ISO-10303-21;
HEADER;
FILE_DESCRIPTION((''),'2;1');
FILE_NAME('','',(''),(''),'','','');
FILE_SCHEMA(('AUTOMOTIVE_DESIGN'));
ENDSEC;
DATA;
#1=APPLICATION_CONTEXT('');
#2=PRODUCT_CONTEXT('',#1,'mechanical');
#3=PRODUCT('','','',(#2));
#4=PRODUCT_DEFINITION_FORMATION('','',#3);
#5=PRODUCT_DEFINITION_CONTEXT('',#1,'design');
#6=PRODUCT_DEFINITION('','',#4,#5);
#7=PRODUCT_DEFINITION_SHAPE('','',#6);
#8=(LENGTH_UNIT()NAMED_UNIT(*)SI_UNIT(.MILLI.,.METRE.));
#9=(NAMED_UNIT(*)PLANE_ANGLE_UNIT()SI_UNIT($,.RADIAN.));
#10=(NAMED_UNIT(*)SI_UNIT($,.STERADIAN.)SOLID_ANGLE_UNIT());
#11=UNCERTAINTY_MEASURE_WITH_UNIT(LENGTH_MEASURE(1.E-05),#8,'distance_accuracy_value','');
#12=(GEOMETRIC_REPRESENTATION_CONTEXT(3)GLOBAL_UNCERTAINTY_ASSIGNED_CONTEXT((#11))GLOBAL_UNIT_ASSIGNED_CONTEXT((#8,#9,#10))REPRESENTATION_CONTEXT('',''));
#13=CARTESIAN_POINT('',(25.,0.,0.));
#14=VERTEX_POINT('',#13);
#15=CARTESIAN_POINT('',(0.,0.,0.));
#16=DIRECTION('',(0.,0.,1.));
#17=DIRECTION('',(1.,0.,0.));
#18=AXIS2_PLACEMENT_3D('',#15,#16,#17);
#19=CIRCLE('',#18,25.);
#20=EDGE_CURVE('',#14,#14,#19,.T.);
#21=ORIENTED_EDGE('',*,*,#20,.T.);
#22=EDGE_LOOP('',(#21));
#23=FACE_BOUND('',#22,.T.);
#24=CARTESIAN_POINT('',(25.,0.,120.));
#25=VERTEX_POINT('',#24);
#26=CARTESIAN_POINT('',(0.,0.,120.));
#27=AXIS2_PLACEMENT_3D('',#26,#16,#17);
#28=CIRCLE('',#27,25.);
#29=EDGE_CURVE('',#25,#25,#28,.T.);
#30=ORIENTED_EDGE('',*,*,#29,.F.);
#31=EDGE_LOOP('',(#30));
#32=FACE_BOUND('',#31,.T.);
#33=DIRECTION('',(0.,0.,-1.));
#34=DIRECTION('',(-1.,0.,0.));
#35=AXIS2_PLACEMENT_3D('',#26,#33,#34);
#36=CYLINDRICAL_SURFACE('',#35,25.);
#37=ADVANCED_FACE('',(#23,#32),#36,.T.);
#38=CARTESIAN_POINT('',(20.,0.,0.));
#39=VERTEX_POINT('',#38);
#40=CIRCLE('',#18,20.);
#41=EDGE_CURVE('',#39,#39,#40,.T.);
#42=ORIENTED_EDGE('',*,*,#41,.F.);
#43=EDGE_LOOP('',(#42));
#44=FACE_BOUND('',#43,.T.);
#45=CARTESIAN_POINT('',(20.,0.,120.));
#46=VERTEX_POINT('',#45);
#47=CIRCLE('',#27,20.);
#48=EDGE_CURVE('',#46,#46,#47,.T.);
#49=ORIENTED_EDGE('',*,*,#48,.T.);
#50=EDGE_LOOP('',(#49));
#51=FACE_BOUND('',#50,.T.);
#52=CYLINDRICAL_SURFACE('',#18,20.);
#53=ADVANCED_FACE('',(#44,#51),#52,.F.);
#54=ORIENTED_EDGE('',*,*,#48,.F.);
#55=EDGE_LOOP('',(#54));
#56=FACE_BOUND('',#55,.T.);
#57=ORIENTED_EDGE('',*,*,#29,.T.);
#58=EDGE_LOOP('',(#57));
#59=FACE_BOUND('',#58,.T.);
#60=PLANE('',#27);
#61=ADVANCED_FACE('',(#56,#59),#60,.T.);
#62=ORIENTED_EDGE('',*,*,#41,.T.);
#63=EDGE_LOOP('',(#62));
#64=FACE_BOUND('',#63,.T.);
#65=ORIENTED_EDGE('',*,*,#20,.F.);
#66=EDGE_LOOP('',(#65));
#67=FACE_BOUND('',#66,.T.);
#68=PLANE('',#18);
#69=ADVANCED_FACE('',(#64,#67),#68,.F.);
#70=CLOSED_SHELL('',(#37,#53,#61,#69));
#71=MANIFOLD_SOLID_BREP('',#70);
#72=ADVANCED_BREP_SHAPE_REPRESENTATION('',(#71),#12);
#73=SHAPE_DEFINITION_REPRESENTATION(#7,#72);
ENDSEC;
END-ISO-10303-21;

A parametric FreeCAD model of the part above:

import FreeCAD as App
import Part
import Sketcher
from FreeCAD import Vector
Q = App.Units.Quantity

doc = App.newDocument("Part")
params = doc.addObject("Spreadsheet::Sheet", "Params")
for row, (alias, value) in enumerate([
    ("sketch1_diameter", "50 mm"),
    ("pad1_length", "120 mm"),
    ("sketch2_diameter", "40 mm"),
], start=1):
    params.set(f"A{row}", alias)
    params.set(f"B{row}", "=" + value)
    params.setAlias(f"B{row}", alias)

body = doc.addObject("PartDesign::Body", "Body")

sketch1 = body.newObject("Sketcher::SketchObject", "Sketch")
sketch1.AttachmentSupport = (doc.getObject("XY_Plane"), [""])
sketch1.MapMode = "FlatFace"
sketch1.addGeometry(Part.Circle(Vector(0, 0, 0), Vector(0, 0, 1), 25), False)
sketch1.addConstraint(Sketcher.Constraint("Coincident", 0, 3, -1, 1))
sketch1.addConstraint(Sketcher.Constraint("Diameter", 0, Q("50 mm")))
sketch1.setExpression("Constraints[1]", "Params.sketch1_diameter")
pad1 = body.newObject("PartDesign::Pad", "Pad")
pad1.Profile = sketch1
pad1.setExpression("Length", "Params.pad1_length")

sketch2 = body.newObject("Sketcher::SketchObject", "Sketch001")
sketch2.AttachmentSupport = (doc.getObject("XY_Plane"), [""])
sketch2.MapMode = "FlatFace"
sketch2.AttachmentOffset = App.Placement(Vector(0, 0, 120), App.Rotation())
sketch2.addGeometry(Part.Circle(Vector(0, 0, 0), Vector(0, 0, 1), 20), False)
sketch2.addConstraint(Sketcher.Constraint("Coincident", 0, 3, -1, 1))
sketch2.addConstraint(Sketcher.Constraint("Diameter", 0, Q("40 mm")))
sketch2.setExpression("Constraints[1]", "Params.sketch2_diameter")
pocket1 = body.newObject("PartDesign::Pocket", "Pocket")
pocket1.Profile = sketch2
pocket1.Type = "ThroughAll"

doc.recompute()
